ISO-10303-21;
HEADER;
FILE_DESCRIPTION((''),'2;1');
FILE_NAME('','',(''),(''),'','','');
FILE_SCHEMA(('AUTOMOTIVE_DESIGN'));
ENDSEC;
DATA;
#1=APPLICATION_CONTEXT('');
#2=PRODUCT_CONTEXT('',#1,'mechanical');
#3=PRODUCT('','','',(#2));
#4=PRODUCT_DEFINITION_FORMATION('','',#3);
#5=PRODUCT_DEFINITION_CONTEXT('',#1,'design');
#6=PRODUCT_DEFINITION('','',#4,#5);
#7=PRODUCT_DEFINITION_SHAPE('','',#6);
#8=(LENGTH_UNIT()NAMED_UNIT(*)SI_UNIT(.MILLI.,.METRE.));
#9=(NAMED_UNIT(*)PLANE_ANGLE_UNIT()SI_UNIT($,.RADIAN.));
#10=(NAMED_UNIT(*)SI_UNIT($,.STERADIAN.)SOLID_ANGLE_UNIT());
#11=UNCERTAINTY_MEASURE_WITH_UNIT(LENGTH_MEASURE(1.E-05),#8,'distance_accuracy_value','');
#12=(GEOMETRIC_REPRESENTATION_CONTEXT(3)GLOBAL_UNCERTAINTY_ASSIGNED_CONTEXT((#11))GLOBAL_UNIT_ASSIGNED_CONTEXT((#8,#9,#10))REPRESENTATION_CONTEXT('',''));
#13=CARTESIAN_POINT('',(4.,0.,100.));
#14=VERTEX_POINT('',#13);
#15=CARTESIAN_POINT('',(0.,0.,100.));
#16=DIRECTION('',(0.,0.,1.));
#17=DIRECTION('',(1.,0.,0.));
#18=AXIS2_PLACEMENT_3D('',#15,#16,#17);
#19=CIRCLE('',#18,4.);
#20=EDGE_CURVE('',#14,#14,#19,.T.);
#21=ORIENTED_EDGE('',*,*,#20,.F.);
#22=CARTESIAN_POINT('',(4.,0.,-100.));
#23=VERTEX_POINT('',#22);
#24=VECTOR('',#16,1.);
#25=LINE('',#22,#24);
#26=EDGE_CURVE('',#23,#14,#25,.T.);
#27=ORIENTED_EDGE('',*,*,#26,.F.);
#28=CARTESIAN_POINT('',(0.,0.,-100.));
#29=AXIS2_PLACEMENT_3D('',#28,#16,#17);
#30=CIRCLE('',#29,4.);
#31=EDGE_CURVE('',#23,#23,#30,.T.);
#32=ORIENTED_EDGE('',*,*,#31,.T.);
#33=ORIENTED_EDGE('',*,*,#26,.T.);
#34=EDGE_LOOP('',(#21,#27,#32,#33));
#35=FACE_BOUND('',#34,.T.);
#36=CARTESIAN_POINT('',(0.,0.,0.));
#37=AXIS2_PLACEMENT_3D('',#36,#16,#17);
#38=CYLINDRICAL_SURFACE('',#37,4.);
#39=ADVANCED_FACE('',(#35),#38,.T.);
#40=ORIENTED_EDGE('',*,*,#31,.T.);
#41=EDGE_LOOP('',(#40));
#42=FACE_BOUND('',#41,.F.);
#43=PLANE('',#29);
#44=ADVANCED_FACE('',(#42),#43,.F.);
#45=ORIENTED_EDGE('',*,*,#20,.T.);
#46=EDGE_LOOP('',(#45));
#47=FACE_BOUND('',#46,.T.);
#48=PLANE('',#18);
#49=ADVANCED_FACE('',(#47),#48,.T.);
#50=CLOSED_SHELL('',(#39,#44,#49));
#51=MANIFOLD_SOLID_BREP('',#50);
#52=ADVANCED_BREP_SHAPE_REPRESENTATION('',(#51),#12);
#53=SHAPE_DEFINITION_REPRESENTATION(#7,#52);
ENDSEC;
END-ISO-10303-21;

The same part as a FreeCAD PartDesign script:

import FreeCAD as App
import Part
import Sketcher
Q = App.Units.Quantity

doc = App.newDocument("Part")
body = doc.addObject("PartDesign::Body", "Body")

# Sketch on XY plane
sketch1 = body.newObject("Sketcher::SketchObject", "Sketch")
sketch1.AttachmentSupport = (doc.getObject("XY_Plane"), [""])
sketch1.MapMode = "FlatFace"
sketch1.addGeometry(Part.Circle(App.Vector(0, 0, 0), App.Vector(0, 0, 1), 4), False)
sketch1.addConstraint([
    Sketcher.Constraint("Coincident", 0, 3, -1, 1),
    Sketcher.Constraint("Diameter", 0, Q("8 mm")),
])
pad1 = body.newObject("PartDesign::Pad", "Pad")
pad1.Profile = sketch1
pad1.Length = 200
pad1.Midplane = True

doc.recompute()
